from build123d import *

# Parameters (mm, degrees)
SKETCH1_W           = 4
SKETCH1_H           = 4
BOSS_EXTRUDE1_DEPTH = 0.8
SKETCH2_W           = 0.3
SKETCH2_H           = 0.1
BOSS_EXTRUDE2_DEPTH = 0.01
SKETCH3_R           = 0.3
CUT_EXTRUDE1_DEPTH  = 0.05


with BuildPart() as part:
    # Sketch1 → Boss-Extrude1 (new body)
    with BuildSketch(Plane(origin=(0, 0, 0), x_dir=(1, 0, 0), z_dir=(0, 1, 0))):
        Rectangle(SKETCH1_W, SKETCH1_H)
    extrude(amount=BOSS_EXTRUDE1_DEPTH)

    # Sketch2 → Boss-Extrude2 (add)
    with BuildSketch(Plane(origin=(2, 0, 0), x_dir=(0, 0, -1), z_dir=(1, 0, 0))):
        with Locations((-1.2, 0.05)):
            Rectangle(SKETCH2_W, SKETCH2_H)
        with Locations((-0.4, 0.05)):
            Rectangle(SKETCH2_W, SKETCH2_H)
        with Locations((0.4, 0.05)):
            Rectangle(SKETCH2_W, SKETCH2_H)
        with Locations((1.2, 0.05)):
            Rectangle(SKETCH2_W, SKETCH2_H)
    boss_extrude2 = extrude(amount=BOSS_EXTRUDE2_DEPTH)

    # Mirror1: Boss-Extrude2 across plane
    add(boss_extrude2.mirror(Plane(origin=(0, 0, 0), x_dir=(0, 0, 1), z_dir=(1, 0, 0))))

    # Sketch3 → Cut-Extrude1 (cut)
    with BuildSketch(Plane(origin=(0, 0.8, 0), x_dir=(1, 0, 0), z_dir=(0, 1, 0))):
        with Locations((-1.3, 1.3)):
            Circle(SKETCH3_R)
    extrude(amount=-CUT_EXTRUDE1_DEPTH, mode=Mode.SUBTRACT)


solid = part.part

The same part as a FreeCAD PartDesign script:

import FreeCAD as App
import Part
import Sketcher

V = App.Vector


def add_polygon(sketch, points):
    """Adds a closed chain of lines whose ends are joined by coincident constraints."""
    first, n = sketch.GeometryCount, len(points)
    for a, b in zip(points, points[1:] + points[:1]):
        sketch.addGeometry(Part.LineSegment(App.Vector(*a, 0), App.Vector(*b, 0)), False)
    for i in range(n):
        sketch.addConstraint(Sketcher.Constraint("Coincident", first + i, 2, first + (i + 1) % n, 1))

doc = App.newDocument("Part")
body = doc.addObject("PartDesign::Body", "Body")

# Sketch on XZ plane
sketch1 = body.newObject("Sketcher::SketchObject", "Sketch")
sketch1.AttachmentSupport = (doc.getObject("XZ_Plane"), [""])
sketch1.MapMode = "FlatFace"
add_polygon(sketch1, [(-2, -2), (-2, 2), (2, 2), (2, -2)])  # lines 0-3
sketch1.addConstraint([
    Sketcher.Constraint("Vertical", 0),
    Sketcher.Constraint("Horizontal", 1),
    Sketcher.Constraint("Vertical", 2),
    Sketcher.Constraint("Horizontal", 3),
    Sketcher.Constraint("Symmetric", 0, 2, 2, 2, -1, 1),
    Sketcher.Constraint("Equal", 3, 0),
    Sketcher.Constraint("DistanceX", 1, 1, 1, 2, 4.0),
])
pad1 = body.newObject("PartDesign::Pad", "Pad")
pad1.Profile = sketch1
pad1.Length = 0.8
pad1.Reversed = True

# Sketch on YZ plane
sketch2 = body.newObject("Sketcher::SketchObject", "Sketch001")
sketch2.AttachmentSupport = (doc.getObject("YZ_Plane"), [""])
sketch2.MapMode = "FlatFace"
sketch2.AttachmentOffset = App.Placement(V(0, 0, 2), App.Rotation())
add_polygon(sketch2, [(0.1, 1.35), (0, 1.35), (0, 1.05), (0.1, 1.05)])  # lines 0-3
add_polygon(sketch2, [(0.1, 0.55), (0, 0.55), (0, 0.25), (0.1, 0.25)])  # lines 4-7
add_polygon(sketch2, [(0.1, -0.25), (0, -0.25), (0, -0.55), (0.1, -0.55)])  # lines 8-11
add_polygon(sketch2, [(0.1, -1.05), (0, -1.05), (0, -1.35), (0.1, -1.35)])  # lines 12-15
sketch2.addConstraint([
    Sketcher.Constraint("Horizontal", 0),
    Sketcher.Constraint("Vertical", 1),
    Sketcher.Constraint("Horizontal", 2),
    Sketcher.Constraint("Vertical", 3),
    Sketcher.Constraint("Horizontal", 4),
    Sketcher.Constraint("Vertical", 5),
    Sketcher.Constraint("Horizontal", 6),
    Sketcher.Constraint("Vertical", 7),
    Sketcher.Constraint("Horizontal", 8),
    Sketcher.Constraint("Vertical", 9),
    Sketcher.Constraint("Horizontal", 10),
    Sketcher.Constraint("Vertical", 11),
    Sketcher.Constraint("Horizontal", 12),
    Sketcher.Constraint("Vertical", 13),
    Sketcher.Constraint("Horizontal", 14),
    Sketcher.Constraint("Vertical", 15),
    Sketcher.Constraint("Symmetric", 5, 2, 8, 2, -1, 1),
    Sketcher.Constraint("Symmetric", 1, 2, 12, 2, -1, 1),
    Sketcher.Constraint("Symmetric", 4, 2, 9, 2, -1),
    Sketcher.Constraint("Symmetric", 0, 2, 13, 2, -1),
    Sketcher.Constraint("Vertical", 3, 2, 6, 2),
    Sketcher.Constraint("Vertical", 7, 2, 10, 2),
    Sketcher.Constraint("Vertical", 11, 2, 14, 2),
    Sketcher.Constraint("Equal", 3, 5),
    Sketcher.Constraint("DistanceX", 0, 2, 0, 1, 0.1),
    Sketcher.Constraint("DistanceY", 1, 2, 1, 1, 0.3),
    Sketcher.Constraint("DistanceY", 4, 2, 1, 2, 0.5),
    Sketcher.Constraint("DistanceY", 8, 2, 5, 2, 0.5),
])
pad2 = body.newObject("PartDesign::Pad", "Pad001")
pad2.Profile = sketch2
pad2.Length = 0.01
doc.recompute()

mirrored = body.newObject("PartDesign::Mirrored", "Mirrored")
mirrored.Originals = [pad2]
mirrored.MirrorPlane = (doc.getObject("YZ_Plane"), [""])
body.Tip = mirrored

# Sketch on XZ plane
sketch3 = body.newObject("Sketcher::SketchObject", "Sketch002")
sketch3.AttachmentSupport = (doc.getObject("XZ_Plane"), [""])
sketch3.MapMode = "FlatFace"
sketch3.AttachmentOffset = App.Placement(V(0, 0, -0.8), App.Rotation())
sketch3.addGeometry(Part.Circle(V(-1.3, -1.3, 0), V(0, 0, 1), 0.3), False)
sketch3.addConstraint([
    Sketcher.Constraint("Diameter", 0, 0.6),
    Sketcher.Constraint("DistanceX", 0, 3, -1, 1, 1.3),
    Sketcher.Constraint("DistanceY", 0, 3, -1, 1, 1.3),
])
pocket1 = body.newObject("PartDesign::Pocket", "Pocket")
pocket1.Profile = sketch3
pocket1.Length = 0.05
pocket1.Reversed = True

doc.recompute()
